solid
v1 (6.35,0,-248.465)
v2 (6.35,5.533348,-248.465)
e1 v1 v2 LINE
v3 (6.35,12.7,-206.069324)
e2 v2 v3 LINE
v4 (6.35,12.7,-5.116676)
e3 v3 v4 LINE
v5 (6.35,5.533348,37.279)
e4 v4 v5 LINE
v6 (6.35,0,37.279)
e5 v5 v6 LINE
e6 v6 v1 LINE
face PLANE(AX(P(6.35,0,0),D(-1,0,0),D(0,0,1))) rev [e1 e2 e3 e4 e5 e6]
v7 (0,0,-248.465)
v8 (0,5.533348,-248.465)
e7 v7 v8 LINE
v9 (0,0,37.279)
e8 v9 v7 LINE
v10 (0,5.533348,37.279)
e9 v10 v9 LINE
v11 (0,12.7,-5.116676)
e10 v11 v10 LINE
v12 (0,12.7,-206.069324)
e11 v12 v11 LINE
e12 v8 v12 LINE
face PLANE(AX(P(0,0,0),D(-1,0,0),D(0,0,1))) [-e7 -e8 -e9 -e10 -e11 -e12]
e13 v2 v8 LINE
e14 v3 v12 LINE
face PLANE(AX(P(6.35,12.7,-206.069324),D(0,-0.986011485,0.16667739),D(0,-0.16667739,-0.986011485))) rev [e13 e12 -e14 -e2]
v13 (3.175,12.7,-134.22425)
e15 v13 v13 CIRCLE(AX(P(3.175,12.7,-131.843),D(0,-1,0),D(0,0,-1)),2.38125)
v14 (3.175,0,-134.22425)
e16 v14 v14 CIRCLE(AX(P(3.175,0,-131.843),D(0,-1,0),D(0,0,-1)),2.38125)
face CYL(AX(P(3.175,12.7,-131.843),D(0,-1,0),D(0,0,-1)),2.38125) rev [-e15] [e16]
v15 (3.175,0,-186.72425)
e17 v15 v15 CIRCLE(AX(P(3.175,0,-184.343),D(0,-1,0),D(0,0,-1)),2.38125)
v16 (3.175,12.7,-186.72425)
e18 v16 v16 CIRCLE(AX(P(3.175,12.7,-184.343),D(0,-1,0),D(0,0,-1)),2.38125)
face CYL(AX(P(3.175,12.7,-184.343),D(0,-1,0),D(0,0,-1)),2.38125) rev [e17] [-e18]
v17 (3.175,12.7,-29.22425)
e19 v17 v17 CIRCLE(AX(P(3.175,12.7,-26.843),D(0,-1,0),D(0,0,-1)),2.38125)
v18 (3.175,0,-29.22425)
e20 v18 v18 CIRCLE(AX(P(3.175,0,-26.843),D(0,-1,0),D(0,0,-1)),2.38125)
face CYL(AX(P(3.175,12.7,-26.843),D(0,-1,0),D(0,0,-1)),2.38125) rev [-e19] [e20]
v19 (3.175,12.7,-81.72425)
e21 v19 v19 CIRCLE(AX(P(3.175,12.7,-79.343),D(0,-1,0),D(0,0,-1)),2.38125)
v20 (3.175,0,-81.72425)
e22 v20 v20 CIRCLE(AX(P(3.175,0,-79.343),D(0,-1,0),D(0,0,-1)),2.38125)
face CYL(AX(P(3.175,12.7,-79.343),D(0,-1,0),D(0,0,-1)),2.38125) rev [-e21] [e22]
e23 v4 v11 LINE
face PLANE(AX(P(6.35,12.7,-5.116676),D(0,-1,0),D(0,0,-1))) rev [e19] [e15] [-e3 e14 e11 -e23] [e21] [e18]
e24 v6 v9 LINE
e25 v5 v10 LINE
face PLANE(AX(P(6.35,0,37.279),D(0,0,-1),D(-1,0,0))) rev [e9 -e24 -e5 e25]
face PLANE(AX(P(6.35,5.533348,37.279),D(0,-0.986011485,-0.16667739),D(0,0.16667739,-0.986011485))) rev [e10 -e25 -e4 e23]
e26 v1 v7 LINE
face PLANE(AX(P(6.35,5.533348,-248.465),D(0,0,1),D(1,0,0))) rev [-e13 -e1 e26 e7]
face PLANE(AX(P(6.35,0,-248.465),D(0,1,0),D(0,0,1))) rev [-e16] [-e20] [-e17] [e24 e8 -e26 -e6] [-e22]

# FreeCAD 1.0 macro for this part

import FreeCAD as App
import Part
import Sketcher

V = App.Vector
Q = App.Units.Quantity


def add_polygon(sketch, points):
    """Adds a closed chain of lines whose ends are joined by coincident constraints."""
    first, n = sketch.GeometryCount, len(points)
    for a, b in zip(points, points[1:] + points[:1]):
        sketch.addGeometry(Part.LineSegment(App.Vector(*a, 0), App.Vector(*b, 0)), False)
    for i in range(n):
        sketch.addConstraint(Sketcher.Constraint("Coincident", first + i, 2, first + (i + 1) % n, 1))

doc = App.newDocument("Part")
params = doc.addObject("Spreadsheet::Sheet", "Params")
for row, (alias, value) in enumerate([
    ("pad1_length", "0.25 in"),
    ("sketch2_diameter", "0.1875 in"),
    ("pocket1_length", "0.5 in"),
], start=1):
    params.set(f"A{row}", alias)
    params.set(f"B{row}", "=" + value)
    params.setAlias(f"B{row}", alias)

body = doc.addObject("PartDesign::Body", "Body")

# Sketch on YZ plane
sketch1 = doc.addObject("Sketcher::SketchObject", "Sketch")
body.addObject(sketch1)
sketch1.AttachmentSupport = (doc.YZ_Plane, [""])
sketch1.MapMode = "FlatFace"
add_polygon(sketch1, [(0, 37), (0, -248), (6, -248), (13, -206), (13, -5), (6, 37)])  # lines 0-5
sketch1.addConstraint([
    Sketcher.Constraint("Vertical", 0),
    Sketcher.Constraint("Horizontal", 1),
    Sketcher.Constraint("Vertical", 3),
    Sketcher.Constraint("Horizontal", 5),
    Sketcher.Constraint("PointOnObject", 0, 2, -2),
    Sketcher.Constraint("Vertical", 1, 2, 4, 2),
    Sketcher.Constraint("Equal", 2, 4),
    Sketcher.Constraint("DistanceX", -1, 1, 2, 2, Q("0.5 in")),
    Sketcher.Constraint("DistanceY", 0, 2, 0, 1, 285.744),
    Sketcher.Constraint("DistanceX", 1, 1, 1, 2, 5.533348),
    Sketcher.Constraint("DistanceY", 0, 2, -1, 1, 248.465),
    Sketcher.Constraint("DistanceY", 3, 1, 3, 2, 200.952647),
])
pad1 = doc.addObject("PartDesign::Pad", "Pad")
body.addObject(pad1)
pad1.Profile = sketch1
pad1.setExpression("Length", "Params.pad1_length")

# Sketch on XZ plane
sketch2 = doc.addObject("Sketcher::SketchObject", "Sketch001")
body.addObject(sketch2)
sketch2.AttachmentSupport = (doc.XZ_Plane, [""])
sketch2.MapMode = "FlatFace"
sketch2.addGeometry([
    Part.Circle(V(3.2, -26.8, 0), V(0, 0, 1), 2.4),
    Part.Circle(V(3.2, -79.3, 0), V(0, 0, 1), 2.4),
    Part.Circle(V(3.2, -131.8, 0), V(0, 0, 1), 2.4),
    Part.Circle(V(3.2, -184.3, 0), V(0, 0, 1), 2.4),
], False)
sketch2.addConstraint([
    Sketcher.Constraint("Equal", 0, 1),
    Sketcher.Constraint("Equal", 1, 2),
    Sketcher.Constraint("Equal", 2, 3),
    Sketcher.Constraint("Vertical", 0, 3, 1, 3),
    Sketcher.Constraint("Vertical", 1, 3, 2, 3),
    Sketcher.Constraint("Vertical", 2, 3, 3, 3),
    Sketcher.Constraint("Diameter", 0, Q("0.1875 in")),
    Sketcher.Constraint("DistanceX", -1, 1, 0, 3, Q("0.125 in")),
    Sketcher.Constraint("DistanceY", 0, 3, -1, 1, 26.843),
    Sketcher.Constraint("DistanceY", 1, 3, -1, 1, 79.343),
    Sketcher.Constraint("DistanceY", 2, 3, -1, 1, 131.843),
    Sketcher.Constraint("DistanceY", 3, 3, -1, 1, 184.343),
])
sketch2.setExpression("Constraints[6]", "Params.sketch2_diameter")
pocket1 = doc.addObject("PartDesign::Pocket", "Pocket")
body.addObject(pocket1)
pocket1.Profile = sketch2
pocket1.setExpression("Length", "Params.pocket1_length")

doc.recompute()
